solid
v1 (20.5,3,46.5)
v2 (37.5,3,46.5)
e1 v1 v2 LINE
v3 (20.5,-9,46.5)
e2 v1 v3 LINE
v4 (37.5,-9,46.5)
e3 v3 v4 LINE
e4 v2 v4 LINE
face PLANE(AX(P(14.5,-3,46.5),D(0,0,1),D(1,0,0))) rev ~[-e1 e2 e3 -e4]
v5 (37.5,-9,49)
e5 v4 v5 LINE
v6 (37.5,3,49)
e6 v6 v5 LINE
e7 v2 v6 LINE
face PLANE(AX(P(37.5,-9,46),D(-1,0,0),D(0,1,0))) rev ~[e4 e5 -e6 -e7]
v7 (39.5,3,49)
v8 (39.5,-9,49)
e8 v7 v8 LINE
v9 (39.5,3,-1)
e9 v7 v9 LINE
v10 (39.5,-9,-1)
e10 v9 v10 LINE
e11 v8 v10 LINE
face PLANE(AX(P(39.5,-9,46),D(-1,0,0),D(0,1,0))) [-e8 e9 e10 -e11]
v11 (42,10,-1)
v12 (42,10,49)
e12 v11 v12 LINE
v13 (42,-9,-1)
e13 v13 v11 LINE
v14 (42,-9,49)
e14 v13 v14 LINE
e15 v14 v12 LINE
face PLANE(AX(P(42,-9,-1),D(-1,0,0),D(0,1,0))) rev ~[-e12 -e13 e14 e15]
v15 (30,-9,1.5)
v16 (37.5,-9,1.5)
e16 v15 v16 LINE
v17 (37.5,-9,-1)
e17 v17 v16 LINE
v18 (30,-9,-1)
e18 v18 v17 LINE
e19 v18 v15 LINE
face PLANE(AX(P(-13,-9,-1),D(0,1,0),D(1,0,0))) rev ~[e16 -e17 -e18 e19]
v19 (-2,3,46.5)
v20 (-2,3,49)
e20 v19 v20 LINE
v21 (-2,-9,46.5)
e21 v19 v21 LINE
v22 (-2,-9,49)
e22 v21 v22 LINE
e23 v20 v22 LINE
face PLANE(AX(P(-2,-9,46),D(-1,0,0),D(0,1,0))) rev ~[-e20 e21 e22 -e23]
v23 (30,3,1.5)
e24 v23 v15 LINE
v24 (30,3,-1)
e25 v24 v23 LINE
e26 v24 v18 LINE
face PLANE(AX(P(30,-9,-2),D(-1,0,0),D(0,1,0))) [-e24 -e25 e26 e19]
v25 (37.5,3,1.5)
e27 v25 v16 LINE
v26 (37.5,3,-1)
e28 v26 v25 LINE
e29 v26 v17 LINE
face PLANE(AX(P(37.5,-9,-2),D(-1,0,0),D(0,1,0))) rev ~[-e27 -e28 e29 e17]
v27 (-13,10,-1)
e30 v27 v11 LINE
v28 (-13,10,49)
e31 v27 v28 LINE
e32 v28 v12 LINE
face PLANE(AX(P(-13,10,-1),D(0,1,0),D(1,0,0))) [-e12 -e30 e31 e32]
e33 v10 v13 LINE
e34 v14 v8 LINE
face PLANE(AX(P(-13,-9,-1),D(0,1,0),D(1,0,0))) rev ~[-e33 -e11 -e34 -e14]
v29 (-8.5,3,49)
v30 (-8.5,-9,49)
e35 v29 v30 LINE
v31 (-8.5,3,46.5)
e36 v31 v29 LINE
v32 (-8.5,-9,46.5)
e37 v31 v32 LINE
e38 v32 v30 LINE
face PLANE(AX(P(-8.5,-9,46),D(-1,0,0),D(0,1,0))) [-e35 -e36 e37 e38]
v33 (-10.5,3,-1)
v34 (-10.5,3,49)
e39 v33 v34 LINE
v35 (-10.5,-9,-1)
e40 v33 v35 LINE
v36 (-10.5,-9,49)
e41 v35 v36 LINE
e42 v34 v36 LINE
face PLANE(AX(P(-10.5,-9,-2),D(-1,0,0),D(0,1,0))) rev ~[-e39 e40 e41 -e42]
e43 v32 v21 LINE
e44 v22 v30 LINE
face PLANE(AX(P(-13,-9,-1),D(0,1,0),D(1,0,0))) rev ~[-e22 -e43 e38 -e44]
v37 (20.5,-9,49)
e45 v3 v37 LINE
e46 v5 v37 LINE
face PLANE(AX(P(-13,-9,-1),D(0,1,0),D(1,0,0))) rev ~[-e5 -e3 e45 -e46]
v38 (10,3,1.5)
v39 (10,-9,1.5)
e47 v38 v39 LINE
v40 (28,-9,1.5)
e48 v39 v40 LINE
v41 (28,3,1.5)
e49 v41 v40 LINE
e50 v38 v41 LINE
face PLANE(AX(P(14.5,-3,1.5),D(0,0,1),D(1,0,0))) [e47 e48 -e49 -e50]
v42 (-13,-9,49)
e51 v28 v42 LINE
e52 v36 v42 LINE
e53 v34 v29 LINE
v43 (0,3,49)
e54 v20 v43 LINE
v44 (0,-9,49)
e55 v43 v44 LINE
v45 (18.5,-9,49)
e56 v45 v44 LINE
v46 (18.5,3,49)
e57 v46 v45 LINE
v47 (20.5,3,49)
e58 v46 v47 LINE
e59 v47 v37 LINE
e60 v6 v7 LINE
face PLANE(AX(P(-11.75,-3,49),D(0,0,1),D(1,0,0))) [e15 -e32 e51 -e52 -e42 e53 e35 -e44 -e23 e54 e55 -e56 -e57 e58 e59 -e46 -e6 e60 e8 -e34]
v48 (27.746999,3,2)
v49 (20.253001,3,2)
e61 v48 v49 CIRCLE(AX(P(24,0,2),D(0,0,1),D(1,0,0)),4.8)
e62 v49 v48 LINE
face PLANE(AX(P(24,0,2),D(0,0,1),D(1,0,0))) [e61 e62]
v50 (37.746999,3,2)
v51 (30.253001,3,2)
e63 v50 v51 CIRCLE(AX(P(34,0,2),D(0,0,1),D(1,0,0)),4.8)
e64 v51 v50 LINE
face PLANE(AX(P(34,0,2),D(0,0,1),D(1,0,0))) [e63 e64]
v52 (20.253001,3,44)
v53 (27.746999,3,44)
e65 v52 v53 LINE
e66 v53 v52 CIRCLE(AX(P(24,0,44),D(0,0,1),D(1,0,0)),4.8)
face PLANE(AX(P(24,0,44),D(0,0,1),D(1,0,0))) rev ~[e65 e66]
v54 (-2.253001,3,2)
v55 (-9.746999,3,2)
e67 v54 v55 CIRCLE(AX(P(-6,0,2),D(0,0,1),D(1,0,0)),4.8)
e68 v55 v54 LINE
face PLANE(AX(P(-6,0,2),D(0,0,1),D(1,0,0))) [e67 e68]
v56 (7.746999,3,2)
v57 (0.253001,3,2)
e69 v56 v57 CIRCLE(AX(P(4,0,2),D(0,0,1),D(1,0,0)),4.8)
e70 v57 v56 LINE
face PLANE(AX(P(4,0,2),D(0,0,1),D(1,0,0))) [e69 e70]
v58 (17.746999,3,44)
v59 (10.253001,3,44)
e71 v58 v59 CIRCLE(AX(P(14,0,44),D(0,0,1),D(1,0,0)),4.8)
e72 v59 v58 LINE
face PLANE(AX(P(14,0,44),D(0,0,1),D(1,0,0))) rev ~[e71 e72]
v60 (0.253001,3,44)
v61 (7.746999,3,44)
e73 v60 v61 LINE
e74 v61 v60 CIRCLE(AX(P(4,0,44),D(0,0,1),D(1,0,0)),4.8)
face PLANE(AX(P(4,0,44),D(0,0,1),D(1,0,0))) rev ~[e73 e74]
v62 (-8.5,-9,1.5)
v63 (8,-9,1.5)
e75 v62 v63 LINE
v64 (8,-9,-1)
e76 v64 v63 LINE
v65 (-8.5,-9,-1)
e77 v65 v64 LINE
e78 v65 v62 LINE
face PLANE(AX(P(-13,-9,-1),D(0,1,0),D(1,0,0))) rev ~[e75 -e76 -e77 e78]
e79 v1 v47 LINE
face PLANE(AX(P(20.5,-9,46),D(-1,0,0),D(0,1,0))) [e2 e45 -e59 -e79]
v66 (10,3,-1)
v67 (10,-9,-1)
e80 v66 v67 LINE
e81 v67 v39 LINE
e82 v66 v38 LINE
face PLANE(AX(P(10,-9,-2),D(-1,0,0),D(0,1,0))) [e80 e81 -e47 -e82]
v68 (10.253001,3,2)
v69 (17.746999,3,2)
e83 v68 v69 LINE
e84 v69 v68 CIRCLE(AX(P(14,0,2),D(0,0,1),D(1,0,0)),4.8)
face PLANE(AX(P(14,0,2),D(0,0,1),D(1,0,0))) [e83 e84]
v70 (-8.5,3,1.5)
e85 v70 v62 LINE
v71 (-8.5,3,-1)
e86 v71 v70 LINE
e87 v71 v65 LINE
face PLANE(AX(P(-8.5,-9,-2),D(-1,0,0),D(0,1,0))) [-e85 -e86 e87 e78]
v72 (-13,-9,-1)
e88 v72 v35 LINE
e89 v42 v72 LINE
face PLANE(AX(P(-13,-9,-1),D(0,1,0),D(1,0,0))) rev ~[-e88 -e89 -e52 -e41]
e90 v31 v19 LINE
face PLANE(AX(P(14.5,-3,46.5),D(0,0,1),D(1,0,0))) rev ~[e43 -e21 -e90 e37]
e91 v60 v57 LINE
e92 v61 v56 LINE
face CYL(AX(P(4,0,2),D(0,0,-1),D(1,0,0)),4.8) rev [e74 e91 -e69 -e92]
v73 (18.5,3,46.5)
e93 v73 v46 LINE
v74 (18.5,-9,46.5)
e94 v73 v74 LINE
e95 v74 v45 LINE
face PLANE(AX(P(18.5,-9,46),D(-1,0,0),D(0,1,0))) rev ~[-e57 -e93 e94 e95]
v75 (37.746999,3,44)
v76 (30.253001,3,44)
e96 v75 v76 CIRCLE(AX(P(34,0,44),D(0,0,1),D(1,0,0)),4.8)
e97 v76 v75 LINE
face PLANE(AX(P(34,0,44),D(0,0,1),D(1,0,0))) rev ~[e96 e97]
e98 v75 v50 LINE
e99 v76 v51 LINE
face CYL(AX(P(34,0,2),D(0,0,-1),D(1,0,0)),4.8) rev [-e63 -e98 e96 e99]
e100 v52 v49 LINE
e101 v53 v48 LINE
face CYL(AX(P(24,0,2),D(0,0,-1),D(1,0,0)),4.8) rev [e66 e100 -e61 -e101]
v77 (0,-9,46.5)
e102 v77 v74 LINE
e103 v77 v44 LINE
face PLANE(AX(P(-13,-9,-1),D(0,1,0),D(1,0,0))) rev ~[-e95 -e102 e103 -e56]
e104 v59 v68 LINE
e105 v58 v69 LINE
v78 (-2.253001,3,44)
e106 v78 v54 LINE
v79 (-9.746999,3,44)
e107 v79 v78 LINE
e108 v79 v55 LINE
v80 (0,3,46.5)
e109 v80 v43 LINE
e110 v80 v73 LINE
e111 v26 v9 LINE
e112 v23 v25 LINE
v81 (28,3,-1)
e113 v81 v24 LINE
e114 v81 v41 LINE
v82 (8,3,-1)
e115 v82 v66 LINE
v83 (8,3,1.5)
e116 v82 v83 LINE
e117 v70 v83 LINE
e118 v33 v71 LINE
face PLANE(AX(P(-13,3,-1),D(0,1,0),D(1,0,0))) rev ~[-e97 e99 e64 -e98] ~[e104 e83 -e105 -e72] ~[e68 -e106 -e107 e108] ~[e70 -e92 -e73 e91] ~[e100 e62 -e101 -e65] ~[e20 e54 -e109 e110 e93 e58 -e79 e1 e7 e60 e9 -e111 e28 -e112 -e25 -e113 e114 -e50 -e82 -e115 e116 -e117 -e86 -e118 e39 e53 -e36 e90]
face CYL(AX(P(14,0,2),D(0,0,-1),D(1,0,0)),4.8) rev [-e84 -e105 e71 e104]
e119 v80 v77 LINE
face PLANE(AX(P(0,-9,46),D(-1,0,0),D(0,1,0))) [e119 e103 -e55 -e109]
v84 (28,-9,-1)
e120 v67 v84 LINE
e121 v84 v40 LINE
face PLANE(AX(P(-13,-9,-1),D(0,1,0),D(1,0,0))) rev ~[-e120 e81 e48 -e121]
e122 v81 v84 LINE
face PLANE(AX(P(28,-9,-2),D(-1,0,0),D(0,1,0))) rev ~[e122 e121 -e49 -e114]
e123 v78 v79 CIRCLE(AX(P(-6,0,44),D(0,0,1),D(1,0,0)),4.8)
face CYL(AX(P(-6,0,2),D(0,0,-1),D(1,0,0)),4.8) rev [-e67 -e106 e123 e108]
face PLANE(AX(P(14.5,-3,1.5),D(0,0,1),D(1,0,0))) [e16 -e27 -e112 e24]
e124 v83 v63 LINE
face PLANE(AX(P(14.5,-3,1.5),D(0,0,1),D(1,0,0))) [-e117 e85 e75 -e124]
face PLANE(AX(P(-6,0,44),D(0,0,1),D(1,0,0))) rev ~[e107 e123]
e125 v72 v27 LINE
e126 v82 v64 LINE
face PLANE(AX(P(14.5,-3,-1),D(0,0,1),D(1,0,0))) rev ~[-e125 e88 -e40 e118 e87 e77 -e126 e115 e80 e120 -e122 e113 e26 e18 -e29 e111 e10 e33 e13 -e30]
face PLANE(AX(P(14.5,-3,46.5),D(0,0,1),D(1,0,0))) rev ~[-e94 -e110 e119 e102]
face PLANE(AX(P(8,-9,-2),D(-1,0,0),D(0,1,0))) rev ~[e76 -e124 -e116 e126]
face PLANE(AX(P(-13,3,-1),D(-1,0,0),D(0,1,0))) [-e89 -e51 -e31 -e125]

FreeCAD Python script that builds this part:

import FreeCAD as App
import Part
import Sketcher

V = App.Vector

doc = App.newDocument("Part")
body = doc.addObject("PartDesign::Body", "Body")

sketch1 = body.newObject("Sketcher::SketchObject", "Sketch")
sketch1.AttachmentSupport = (doc.getObject("XY_Plane"), [""])
sketch1.MapMode = "FlatFace"
sketch1.AttachmentOffset = App.Placement(V(0, 0, 46), App.Rotation())
sketch1.addGeometry([
    Part.LineSegment(V(18.5, 3, 0), V(18.5, -9, 0)),
    Part.LineSegment(V(18.5, -9, 0), V(20.5, -9, 0)),
    Part.LineSegment(V(20.5, -9, 0), V(20.5, 3, 0)),
    Part.LineSegment(V(20.5, 3, 0), V(18.5, 3, 0)),
], False)
sketch1.addConstraint([
    Sketcher.Constraint("Coincident", 0, 2, 1, 1),
    Sketcher.Constraint("Coincident", 1, 2, 2, 1),
    Sketcher.Constraint("Coincident", 2, 2, 3, 1),
    Sketcher.Constraint("Coincident", 3, 2, 0, 1),
    Sketcher.Constraint("Vertical", 0),
    Sketcher.Constraint("Horizontal", 1),
    Sketcher.Constraint("Vertical", 2),
    Sketcher.Constraint("Horizontal", 3),
    Sketcher.Constraint("DistanceX", 1, 1, 1, 2, 2.0),
    Sketcher.Constraint("DistanceY", 0, 2, 0, 1, 12.0),
    Sketcher.Constraint("DistanceY", 0, 2, -1, 1, 9.0),
    Sketcher.Constraint("DistanceX", -1, 1, 0, 2, 18.5),
])
pad1 = body.newObject("PartDesign::Pad", "Pad")
pad1.Profile = sketch1
pad1.Length = 5
body2 = doc.addObject("PartDesign::Body", "Body001")

sketch2 = body2.newObject("Sketcher::SketchObject", "Sketch001")
sketch2.AttachmentSupport = (doc.getObject("XY_Plane001"), [""])
sketch2.MapMode = "FlatFace"
sketch2.AttachmentOffset = App.Placement(V(0, 0, 46), App.Rotation())
sketch2.addGeometry([
    Part.LineSegment(V(-2, 3, 0), V(-2, -9, 0)),
    Part.LineSegment(V(-2, -9, 0), V(0, -9, 0)),
    Part.LineSegment(V(0, -9, 0), V(0, 3, 0)),
    Part.LineSegment(V(0, 3, 0), V(-2, 3, 0)),
], False)
sketch2.addConstraint([
    Sketcher.Constraint("Coincident", 0, 2, 1, 1),
    Sketcher.Constraint("Coincident", 1, 2, 2, 1),
    Sketcher.Constraint("Coincident", 2, 2, 3, 1),
    Sketcher.Constraint("Coincident", 3, 2, 0, 1),
    Sketcher.Constraint("Vertical", 0),
    Sketcher.Constraint("Horizontal", 1),
    Sketcher.Constraint("Vertical", 2),
    Sketcher.Constraint("Horizontal", 3),
    Sketcher.Constraint("PointOnObject", 1, 2, -2),
    Sketcher.Constraint("DistanceX", 1, 1, 1, 2, 2.0),
    Sketcher.Constraint("DistanceY", 0, 2, 0, 1, 12.0),
    Sketcher.Constraint("DistanceY", 0, 2, -1, 1, 9.0),
])
pad2 = body2.newObject("PartDesign::Pad", "Pad001")
pad2.Profile = sketch2
pad2.Length = 5
body3 = doc.addObject("PartDesign::Body", "Body002")

sketch3 = body3.newObject("Sketcher::SketchObject", "Sketch002")
sketch3.AttachmentSupport = (doc.getObject("XY_Plane002"), [""])
sketch3.MapMode = "FlatFace"
sketch3.AttachmentOffset = App.Placement(V(0, 0, -2), App.Rotation())
sketch3.addGeometry([
    Part.LineSegment(V(8, 3, 0), V(8, -9, 0)),
    Part.LineSegment(V(8, -9, 0), V(10, -9, 0)),
    Part.LineSegment(V(10, -9, 0), V(10, 3, 0)),
    Part.LineSegment(V(10, 3, 0), V(8, 3, 0)),
], False)
sketch3.addConstraint([
    Sketcher.Constraint("Coincident", 0, 2, 1, 1),
    Sketcher.Constraint("Coincident", 1, 2, 2, 1),
    Sketcher.Constraint("Coincident", 2, 2, 3, 1),
    Sketcher.Constraint("Coincident", 3, 2, 0, 1),
    Sketcher.Constraint("Vertical", 0),
    Sketcher.Constraint("Horizontal", 1),
    Sketcher.Constraint("Vertical", 2),
    Sketcher.Constraint("Horizontal", 3),
    Sketcher.Constraint("DistanceX", 1, 1, 1, 2, 2.0),
    Sketcher.Constraint("DistanceY", 0, 2, 0, 1, 12.0),
    Sketcher.Constraint("DistanceX", -1, 1, 0, 2, 8.0),
    Sketcher.Constraint("DistanceY", 0, 2, -1, 1, 9.0),
])
pad3 = body3.newObject("PartDesign::Pad", "Pad002")
pad3.Profile = sketch3
pad3.Length = 5
body4 = doc.addObject("PartDesign::Body", "Body003")
body4.AllowCompound = True

sketch4 = body4.newObject("Sketcher::SketchObject", "Sketch003")
sketch4.AttachmentSupport = (doc.getObject("XY_Plane003"), [""])
sketch4.MapMode = "FlatFace"
sketch4.AttachmentOffset = App.Placement(V(0, 0, -2), App.Rotation())
sketch4.addGeometry([
    Part.LineSegment(V(28, 3, 0), V(28, -9, 0)),
    Part.LineSegment(V(28, -9, 0), V(30, -9, 0)),
    Part.LineSegment(V(30, -9, 0), V(30, 3, 0)),
    Part.LineSegment(V(30, 3, 0), V(28, 3, 0)),
], False)
sketch4.addConstraint([
    Sketcher.Constraint("Coincident", 0, 2, 1, 1),
    Sketcher.Constraint("Coincident", 1, 2, 2, 1),
    Sketcher.Constraint("Coincident", 2, 2, 3, 1),
    Sketcher.Constraint("Coincident", 3, 2, 0, 1),
    Sketcher.Constraint("Vertical", 0),
    Sketcher.Constraint("Horizontal", 1),
    Sketcher.Constraint("Vertical", 2),
    Sketcher.Constraint("Horizontal", 3),
    Sketcher.Constraint("DistanceX", 1, 1, 1, 2, 2.0),
    Sketcher.Constraint("DistanceY", 0, 2, 0, 1, 12.0),
    Sketcher.Constraint("DistanceX", -1, 1, 0, 2, 28.0),
    Sketcher.Constraint("DistanceY", 0, 2, -1, 1, 9.0),
])
pad4 = body4.newObject("PartDesign::Pad", "Pad003")
pad4.Profile = sketch4
pad4.Length = 5
doc.recompute()

boolean = body4.newObject("PartDesign::Boolean", "Boolean")
boolean.Type = "Fuse"
boolean.addObjects([body])
doc.recompute()

boolean2 = body4.newObject("PartDesign::Boolean", "Boolean001")
boolean2.Type = "Fuse"
boolean2.addObjects([body2])
doc.recompute()

boolean3 = body4.newObject("PartDesign::Boolean", "Boolean002")
boolean3.Type = "Fuse"
boolean3.addObjects([body3])
body5 = doc.addObject("PartDesign::Body", "Body004")

sketch5 = body5.newObject("Sketcher::SketchObject", "Sketch004")
sketch5.AttachmentSupport = (doc.getObject("XY_Plane004"), [""])
sketch5.MapMode = "FlatFace"
sketch5.AttachmentOffset = App.Placement(V(0, 0, 46), App.Rotation())
sketch5.addGeometry([
    Part.LineSegment(V(-10.5, 3, 0), V(-10.5, -9, 0)),
    Part.LineSegment(V(-10.5, -9, 0), V(-8.5, -9, 0)),
    Part.LineSegment(V(-8.5, -9, 0), V(-8.5, 3, 0)),
    Part.LineSegment(V(-8.5, 3, 0), V(-10.5, 3, 0)),
], False)
sketch5.addConstraint([
    Sketcher.Constraint("Coincident", 0, 2, 1, 1),
    Sketcher.Constraint("Coincident", 1, 2, 2, 1),
    Sketcher.Constraint("Coincident", 2, 2, 3, 1),
    Sketcher.Constraint("Coincident", 3, 2, 0, 1),
    Sketcher.Constraint("Vertical", 0),
    Sketcher.Constraint("Horizontal", 1),
    Sketcher.Constraint("Vertical", 2),
    Sketcher.Constraint("Horizontal", 3),
    Sketcher.Constraint("DistanceX", 1, 1, 1, 2, 2.0),
    Sketcher.Constraint("DistanceY", 0, 2, 0, 1, 12.0),
    Sketcher.Constraint("DistanceY", 0, 2, -1, 1, 9.0),
    Sketcher.Constraint("DistanceX", 0, 2, -1, 1, 10.5),
])
pad5 = body5.newObject("PartDesign::Pad", "Pad004")
pad5.Profile = sketch5
pad5.Length = 5
body6 = doc.addObject("PartDesign::Body", "Body005")

sketch6 = body6.newObject("Sketcher::SketchObject", "Sketch005")
sketch6.AttachmentSupport = (doc.getObject("XY_Plane005"), [""])
sketch6.MapMode = "FlatFace"
sketch6.AttachmentOffset = App.Placement(V(0, 0, -2), App.Rotation())
sketch6.addGeometry([
    Part.LineSegment(V(37.5, 3, 0), V(37.5, -9, 0)),
    Part.LineSegment(V(37.5, -9, 0), V(39.5, -9, 0)),
    Part.LineSegment(V(39.5, -9, 0), V(39.5, 3, 0)),
    Part.LineSegment(V(39.5, 3, 0), V(37.5, 3, 0)),
], False)
sketch6.addConstraint([
    Sketcher.Constraint("Coincident", 0, 2, 1, 1),
    Sketcher.Constraint("Coincident", 1, 2, 2, 1),
    Sketcher.Constraint("Coincident", 2, 2, 3, 1),
    Sketcher.Constraint("Coincident", 3, 2, 0, 1),
    Sketcher.Constraint("Vertical", 0),
    Sketcher.Constraint("Horizontal", 1),
    Sketcher.Constraint("Vertical", 2),
    Sketcher.Constraint("Horizontal", 3),
    Sketcher.Constraint("DistanceX", 1, 1, 1, 2, 2.0),
    Sketcher.Constraint("DistanceY", 0, 2, 0, 1, 12.0),
    Sketcher.Constraint("DistanceY", 0, 2, -1, 1, 9.0),
    Sketcher.Constraint("DistanceX", -1, 1, 0, 2, 37.5),
])
pad6 = body6.newObject("PartDesign::Pad", "Pad005")
pad6.Profile = sketch6
pad6.Length = 5
body7 = doc.addObject("PartDesign::Body", "Body006")

sketch7 = body7.newObject("Sketcher::SketchObject", "Sketch006")
sketch7.AttachmentSupport = (doc.getObject("XY_Plane006"), [""])
sketch7.MapMode = "FlatFace"
sketch7.AttachmentOffset = App.Placement(V(0, 0, 46), App.Rotation())
sketch7.addGeometry([
    Part.LineSegment(V(37.5, 3, 0), V(37.5, -9, 0)),
    Part.LineSegment(V(37.5, -9, 0), V(39.5, -9, 0)),
    Part.LineSegment(V(39.5, -9, 0), V(39.5, 3, 0)),
    Part.LineSegment(V(39.5, 3, 0), V(37.5, 3, 0)),
], False)
sketch7.addConstraint([
    Sketcher.Constraint("Coincident", 0, 2, 1, 1),
    Sketcher.Constraint("Coincident", 1, 2, 2, 1),
    Sketcher.Constraint("Coincident", 2, 2, 3, 1),
    Sketcher.Constraint("Coincident", 3, 2, 0, 1),
    Sketcher.Constraint("Vertical", 0),
    Sketcher.Constraint("Horizontal", 1),
    Sketcher.Constraint("Vertical", 2),
    Sketcher.Constraint("Horizontal", 3),
    Sketcher.Constraint("DistanceX", 1, 1, 1, 2, 2.0),
    Sketcher.Constraint("DistanceY", 0, 2, 0, 1, 12.0),
    Sketcher.Constraint("DistanceY", 0, 2, -1, 1, 9.0),
    Sketcher.Constraint("DistanceX", -1, 1, 0, 2, 37.5),
])
pad7 = body7.newObject("PartDesign::Pad", "Pad006")
pad7.Profile = sketch7
pad7.Length = 5
body8 = doc.addObject("PartDesign::Body", "Body007")
body8.AllowCompound = True

sketch8 = body8.newObject("Sketcher::SketchObject", "Sketch007")
sketch8.AttachmentSupport = (doc.getObject("XY_Plane007"), [""])
sketch8.MapMode = "FlatFace"
sketch8.AttachmentOffset = App.Placement(V(0, 0, -2), App.Rotation())
sketch8.addGeometry([
    Part.LineSegment(V(-10.5, 3, 0), V(-10.5, -9, 0)),
    Part.LineSegment(V(-10.5, -9, 0), V(-8.5, -9, 0)),
    Part.LineSegment(V(-8.5, -9, 0), V(-8.5, 3, 0)),
    Part.LineSegment(V(-8.5, 3, 0), V(-10.5, 3, 0)),
], False)
sketch8.addConstraint([
    Sketcher.Constraint("Coincident", 0, 2, 1, 1),
    Sketcher.Constraint("Coincident", 1, 2, 2, 1),
    Sketcher.Constraint("Coincident", 2, 2, 3, 1),
    Sketcher.Constraint("Coincident", 3, 2, 0, 1),
    Sketcher.Constraint("Vertical", 0),
    Sketcher.Constraint("Horizontal", 1),
    Sketcher.Constraint("Vertical", 2),
    Sketcher.Constraint("Horizontal", 3),
    Sketcher.Constraint("DistanceX", 1, 1, 1, 2, 2.0),
    Sketcher.Constraint("DistanceY", 0, 2, 0, 1, 12.0),
    Sketcher.Constraint("DistanceY", 0, 2, -1, 1, 9.0),
    Sketcher.Constraint("DistanceX", 0, 2, -1, 1, 10.5),
])
pad8 = body8.newObject("PartDesign::Pad", "Pad007")
pad8.Profile = sketch8
pad8.Length = 5
doc.recompute()

boolean4 = body8.newObject("PartDesign::Boolean", "Boolean003")
boolean4.Type = "Fuse"
boolean4.addObjects([body5])
doc.recompute()

boolean5 = body8.newObject("PartDesign::Boolean", "Boolean004")
boolean5.Type = "Fuse"
boolean5.addObjects([body6])
doc.recompute()

boolean6 = body8.newObject("PartDesign::Boolean", "Boolean005")
boolean6.Type = "Fuse"
boolean6.addObjects([body7])
body9 = doc.addObject("PartDesign::Body", "Body008")

sketch9 = body9.newObject("Sketcher::SketchObject", "Sketch008")
sketch9.AttachmentSupport = (doc.getObject("XY_Plane008"), [""])
sketch9.MapMode = "FlatFace"
sketch9.AttachmentOffset = App.Placement(V(0, 0, -1), App.Rotation())
sketch9.addGeometry([
    Part.LineSegment(V(-13, 3, 0), V(-13, -9, 0)),
    Part.LineSegment(V(-13, -9, 0), V(-10.5, -9, 0)),
    Part.LineSegment(V(-10.5, -9, 0), V(-10.5, 3, 0)),
    Part.LineSegment(V(-10.5, 3, 0), V(-13, 3, 0)),
], False)
sketch9.addConstraint([
    Sketcher.Constraint("Coincident", 0, 2, 1, 1),
    Sketcher.Constraint("Coincident", 1, 2, 2, 1),
    Sketcher.Constraint("Coincident", 2, 2, 3, 1),
    Sketcher.Constraint("Coincident", 3, 2, 0, 1),
    Sketcher.Constraint("Vertical", 0),
    Sketcher.Constraint("Horizontal", 1),
    Sketcher.Constraint("Vertical", 2),
    Sketcher.Constraint("Horizontal", 3),
    Sketcher.Constraint("DistanceY", 0, 2, 0, 1, 12.0),
    Sketcher.Constraint("DistanceX", 1, 1, 1, 2, 2.5),
    Sketcher.Constraint("DistanceX", 0, 2, -1, 1, 13.0),
    Sketcher.Constraint("DistanceY", 0, 2, -1, 1, 9.0),
])
pad9 = body9.newObject("PartDesign::Pad", "Pad008")
pad9.Profile = sketch9
pad9.Length = 50
body10 = doc.addObject("PartDesign::Body", "Body009")

sketch10 = body10.newObject("Sketcher::SketchObject", "Sketch009")
sketch10.AttachmentSupport = (doc.getObject("XY_Plane009"), [""])
sketch10.MapMode = "FlatFace"
sketch10.AttachmentOffset = App.Placement(V(0, 0, -1), App.Rotation())
sketch10.addGeometry([
    Part.LineSegment(V(39.5, 3, 0), V(39.5, -9, 0)),
    Part.LineSegment(V(39.5, -9, 0), V(42, -9, 0)),
    Part.LineSegment(V(42, -9, 0), V(42, 3, 0)),
    Part.LineSegment(V(42, 3, 0), V(39.5, 3, 0)),
], False)
sketch10.addConstraint([
    Sketcher.Constraint("Coincident", 0, 2, 1, 1),
    Sketcher.Constraint("Coincident", 1, 2, 2, 1),
    Sketcher.Constraint("Coincident", 2, 2, 3, 1),
    Sketcher.Constraint("Coincident", 3, 2, 0, 1),
    Sketcher.Constraint("Vertical", 0),
    Sketcher.Constraint("Horizontal", 1),
    Sketcher.Constraint("Vertical", 2),
    Sketcher.Constraint("Horizontal", 3),
    Sketcher.Constraint("DistanceY", 0, 2, 0, 1, 12.0),
    Sketcher.Constraint("DistanceX", 1, 1, 1, 2, 2.5),
    Sketcher.Constraint("DistanceY", 0, 2, -1, 1, 9.0),
    Sketcher.Constraint("DistanceX", -1, 1, 1, 2, 42.0),
])
pad10 = body10.newObject("PartDesign::Pad", "Pad009")
pad10.Profile = sketch10
pad10.Length = 50
body11 = doc.addObject("PartDesign::Body", "Body010")

sketch11 = body11.newObject("Sketcher::SketchObject", "Sketch010")
sketch11.AttachmentSupport = (doc.getObject("XY_Plane010"), [""])
sketch11.MapMode = "FlatFace"
sketch11.AttachmentOffset = App.Placement(V(0, 0, 46.5), App.Rotation())
sketch11.addGeometry([
    Part.LineSegment(V(-13, 3, 0), V(-13, -9, 0)),
    Part.LineSegment(V(-13, -9, 0), V(42, -9, 0)),
    Part.LineSegment(V(42, -9, 0), V(42, 3, 0)),
    Part.LineSegment(V(42, 3, 0), V(-13, 3, 0)),
], False)
sketch11.addConstraint([
    Sketcher.Constraint("Coincident", 0, 2, 1, 1),
    Sketcher.Constraint("Coincident", 1, 2, 2, 1),
    Sketcher.Constraint("Coincident", 2, 2, 3, 1),
    Sketcher.Constraint("Coincident", 3, 2, 0, 1),
    Sketcher.Constraint("Vertical", 0),
    Sketcher.Constraint("Horizontal", 1),
    Sketcher.Constraint("Vertical", 2),
    Sketcher.Constraint("Horizontal", 3),
    Sketcher.Constraint("DistanceX", 1, 1, 1, 2, 55.0),
    Sketcher.Constraint("DistanceY", 0, 2, 0, 1, 12.0),
    Sketcher.Constraint("DistanceX", 0, 2, -1, 1, 13.0),
    Sketcher.Constraint("DistanceY", 0, 2, -1, 1, 9.0),
])
pad11 = body11.newObject("PartDesign::Pad", "Pad010")
pad11.Profile = sketch11
pad11.Length = 2.5
body12 = doc.addObject("PartDesign::Body", "Body011")
body12.AllowCompound = True

sketch12 = body12.newObject("Sketcher::SketchObject", "Sketch011")
sketch12.AttachmentSupport = (doc.getObject("XY_Plane011"), [""])
sketch12.MapMode = "FlatFace"
sketch12.AttachmentOffset = App.Placement(V(0, 0, -1), App.Rotation())
sketch12.addGeometry([
    Part.LineSegment(V(-13, 3, 0), V(-13, -9, 0)),
    Part.LineSegment(V(-13, -9, 0), V(42, -9, 0)),
    Part.LineSegment(V(42, -9, 0), V(42, 3, 0)),
    Part.LineSegment(V(42, 3, 0), V(-13, 3, 0)),
], False)
sketch12.addConstraint([
    Sketcher.Constraint("Coincident", 0, 2, 1, 1),
    Sketcher.Constraint("Coincident", 1, 2, 2, 1),
    Sketcher.Constraint("Coincident", 2, 2, 3, 1),
    Sketcher.Constraint("Coincident", 3, 2, 0, 1),
    Sketcher.Constraint("Vertical", 0),
    Sketcher.Constraint("Horizontal", 1),
    Sketcher.Constraint("Vertical", 2),
    Sketcher.Constraint("Horizontal", 3),
    Sketcher.Constraint("DistanceX", 1, 1, 1, 2, 55.0),
    Sketcher.Constraint("DistanceY", 0, 2, 0, 1, 12.0),
    Sketcher.Constraint("DistanceX", 0, 2, -1, 1, 13.0),
    Sketcher.Constraint("DistanceY", 0, 2, -1, 1, 9.0),
])
pad12 = body12.newObject("PartDesign::Pad", "Pad011")
pad12.Profile = sketch12
pad12.Length = 2.5
doc.recompute()

boolean7 = body12.newObject("PartDesign::Boolean", "Boolean006")
boolean7.Type = "Fuse"
boolean7.addObjects([body9])
doc.recompute()

boolean8 = body12.newObject("PartDesign::Boolean", "Boolean007")
boolean8.Type = "Fuse"
boolean8.addObjects([body10])
doc.recompute()

boolean9 = body12.newObject("PartDesign::Boolean", "Boolean008")
boolean9.Type = "Fuse"
boolean9.addObjects([body11])
doc.recompute()

boolean10 = body12.newObject("PartDesign::Boolean", "Boolean009")
boolean10.Type = "Cut"
boolean10.addObjects([body8])
doc.recompute()

boolean11 = body12.newObject("PartDesign::Boolean", "Boolean010")
boolean11.Type = "Cut"
boolean11.addObjects([body4])
body13 = doc.addObject("PartDesign::Body", "Body012")

sketch13 = body13.newObject("Sketcher::SketchObject", "Sketch012")
sketch13.AttachmentSupport = (doc.getObject("XY_Plane012"), [""])
sketch13.MapMode = "FlatFace"
sketch13.AttachmentOffset = App.Placement(V(0, 0, 42), App.Rotation())
sketch13.addGeometry(Part.Circle(V(0, 0, 0), V(0, 0, 1), 1.65), False)
sketch13.addConstraint([
    Sketcher.Constraint("Coincident", 0, 3, -1, 1),
    Sketcher.Constraint("Diameter", 0, 3.3),
])
pad13 = body13.newObject("PartDesign::Pad", "Pad012")
pad13.Profile = sketch13
pad13.Length = 1.6
body14 = doc.addObject("PartDesign::Body", "Body013")

sketch14 = body14.newObject("Sketcher::SketchObject", "Sketch013")
sketch14.AttachmentSupport = (doc.getObject("XY_Plane013"), [""])
sketch14.MapMode = "FlatFace"
sketch14.addGeometry(Part.Circle(V(0, 0, 0), V(0, 0, 1), 4.8), False)
sketch14.addConstraint([
    Sketcher.Constraint("Coincident", 0, 3, -1, 1),
    Sketcher.Constraint("Diameter", 0, 9.6),
])
pad14 = body14.newObject("PartDesign::Pad", "Pad013")
pad14.Profile = sketch14
pad14.Length = 42
doc.recompute()

boolean12 = body14.newObject("PartDesign::Boolean", "Boolean011")
boolean12.Type = "Fuse"
boolean12.addObjects([body13])
body15 = doc.addObject("PartDesign::Body", "Body014")
doc.recompute()

body14.Placement = App.Placement(V(2, 0, 0), App.Rotation(V(0, 0, 1), 0))
boolean13 = body15.newObject("PartDesign::Boolean", "Boolean012")
boolean13.Type = "Fuse"
boolean13.addObjects([body14])
body16 = doc.addObject("PartDesign::Body", "Body015")

sketch15 = body16.newObject("Sketcher::SketchObject", "Sketch014")
sketch15.AttachmentSupport = (doc.getObject("XY_Plane015"), [""])
sketch15.MapMode = "FlatFace"
sketch15.AttachmentOffset = App.Placement(V(0, 0, 42), App.Rotation())
sketch15.addGeometry(Part.Circle(V(0, 0, 0), V(0, 0, 1), 1.65), False)
sketch15.addConstraint([
    Sketcher.Constraint("Coincident", 0, 3, -1, 1),
    Sketcher.Constraint("Diameter", 0, 3.3),
])
pad15 = body16.newObject("PartDesign::Pad", "Pad014")
pad15.Profile = sketch15
pad15.Length = 1.6
body17 = doc.addObject("PartDesign::Body", "Body016")

sketch16 = body17.newObject("Sketcher::SketchObject", "Sketch015")
sketch16.AttachmentSupport = (doc.getObject("XY_Plane016"), [""])
sketch16.MapMode = "FlatFace"
sketch16.addGeometry(Part.Circle(V(0, 0, 0), V(0, 0, 1), 4.8), False)
sketch16.addConstraint([
    Sketcher.Constraint("Coincident", 0, 3, -1, 1),
    Sketcher.Constraint("Diameter", 0, 9.6),
])
pad16 = body17.newObject("PartDesign::Pad", "Pad015")
pad16.Profile = sketch16
pad16.Length = 42
doc.recompute()

boolean14 = body17.newObject("PartDesign::Boolean", "Boolean013")
boolean14.Type = "Fuse"
boolean14.addObjects([body16])
body18 = doc.addObject("PartDesign::Body", "Body017")
doc.recompute()

body17.Placement = App.Placement(V(12, 0, 0), App.Rotation(V(0, 0, 1), 0))
boolean15 = body18.newObject("PartDesign::Boolean", "Boolean014")
boolean15.Type = "Fuse"
boolean15.addObjects([body17])
body19 = doc.addObject("PartDesign::Body", "Body018")

sketch17 = body19.newObject("Sketcher::SketchObject", "Sketch016")
sketch17.AttachmentSupport = (doc.getObject("XY_Plane018"), [""])
sketch17.MapMode = "FlatFace"
sketch17.AttachmentOffset = App.Placement(V(0, 0, 42), App.Rotation())
sketch17.addGeometry(Part.Circle(V(0, 0, 0), V(0, 0, 1), 1.65), False)
sketch17.addConstraint([
    Sketcher.Constraint("Coincident", 0, 3, -1, 1),
    Sketcher.Constraint("Diameter", 0, 3.3),
])
pad17 = body19.newObject("PartDesign::Pad", "Pad016")
pad17.Profile = sketch17
pad17.Length = 1.6
body20 = doc.addObject("PartDesign::Body", "Body019")

sketch18 = body20.newObject("Sketcher::SketchObject", "Sketch017")
sketch18.AttachmentSupport = (doc.getObject("XY_Plane019"), [""])
sketch18.MapMode = "FlatFace"
sketch18.addGeometry(Part.Circle(V(0, 0, 0), V(0, 0, 1), 4.8), False)
sketch18.addConstraint([
    Sketcher.Constraint("Coincident", 0, 3, -1, 1),
    Sketcher.Constraint("Diameter", 0, 9.6),
])
pad18 = body20.newObject("PartDesign::Pad", "Pad017")
pad18.Profile = sketch18
pad18.Length = 42
doc.recompute()

boolean16 = body20.newObject("PartDesign::Boolean", "Boolean015")
boolean16.Type = "Fuse"
boolean16.addObjects([body19])
body21 = doc.addObject("PartDesign::Body", "Body020")
doc.recompute()

body20.Placement = App.Placement(V(22, 0, 0), App.Rotation(V(0, 0, 1), 0))
boolean17 = body21.newObject("PartDesign::Boolean", "Boolean016")
boolean17.Type = "Fuse"
boolean17.addObjects([body20])
body22 = doc.addObject("PartDesign::Body", "Body021")

sketch19 = body22.newObject("Sketcher::SketchObject", "Sketch018")
sketch19.AttachmentSupport = (doc.getObject("XY_Plane021"), [""])
sketch19.MapMode = "FlatFace"
sketch19.AttachmentOffset = App.Placement(V(0, 0, 42), App.Rotation())
sketch19.addGeometry(Part.Circle(V(0, 0, 0), V(0, 0, 1), 1.65), False)
sketch19.addConstraint([
    Sketcher.Constraint("Coincident", 0, 3, -1, 1),
    Sketcher.Constraint("Diameter", 0, 3.3),
])
pad19 = body22.newObject("PartDesign::Pad", "Pad018")
pad19.Profile = sketch19
pad19.Length = 1.6
body23 = doc.addObject("PartDesign::Body", "Body022")

sketch20 = body23.newObject("Sketcher::SketchObject", "Sketch019")
sketch20.AttachmentSupport = (doc.getObject("XY_Plane022"), [""])
sketch20.MapMode = "FlatFace"
sketch20.addGeometry(Part.Circle(V(0, 0, 0), V(0, 0, 1), 4.8), False)
sketch20.addConstraint([
    Sketcher.Constraint("Coincident", 0, 3, -1, 1),
    Sketcher.Constraint("Diameter", 0, 9.6),
])
pad20 = body23.newObject("PartDesign::Pad", "Pad019")
pad20.Profile = sketch20
pad20.Length = 42
doc.recompute()

boolean18 = body23.newObject("PartDesign::Boolean", "Boolean017")
boolean18.Type = "Fuse"
boolean18.addObjects([body22])
body24 = doc.addObject("PartDesign::Body", "Body023")
doc.recompute()

body23.Placement = App.Placement(V(32, 0, 0), App.Rotation(V(0, 0, 1), 0))
boolean19 = body24.newObject("PartDesign::Boolean", "Boolean018")
boolean19.Type = "Fuse"
boolean19.addObjects([body23])
body25 = doc.addObject("PartDesign::Body", "Body024")

sketch21 = body25.newObject("Sketcher::SketchObject", "Sketch020")
sketch21.AttachmentSupport = (doc.getObject("XY_Plane024"), [""])
sketch21.MapMode = "FlatFace"
sketch21.AttachmentOffset = App.Placement(V(0, 0, 42), App.Rotation())
sketch21.addGeometry(Part.Circle(V(0, 0, 0), V(0, 0, 1), 1.65), False)
sketch21.addConstraint([
    Sketcher.Constraint("Coincident", 0, 3, -1, 1),
    Sketcher.Constraint("Diameter", 0, 3.3),
])
pad21 = body25.newObject("PartDesign::Pad", "Pad020")
pad21.Profile = sketch21
pad21.Length = 1.6
body26 = doc.addObject("PartDesign::Body", "Body025")

sketch22 = body26.newObject("Sketcher::SketchObject", "Sketch021")
sketch22.AttachmentSupport = (doc.getObject("XY_Plane025"), [""])
sketch22.MapMode = "FlatFace"
sketch22.addGeometry(Part.Circle(V(0, 0, 0), V(0, 0, 1), 4.8), False)
sketch22.addConstraint([
    Sketcher.Constraint("Coincident", 0, 3, -1, 1),
    Sketcher.Constraint("Diameter", 0, 9.6),
])
pad22 = body26.newObject("PartDesign::Pad", "Pad021")
pad22.Profile = sketch22
pad22.Length = 42
doc.recompute()

boolean20 = body26.newObject("PartDesign::Boolean", "Boolean019")
boolean20.Type = "Fuse"
boolean20.addObjects([body25])
body27 = doc.addObject("PartDesign::Body", "Body026")
body27.AllowCompound = True
doc.recompute()

body26.Placement = App.Placement(V(-8, 0, 0), App.Rotation(V(0, 0, 1), 0))
boolean21 = body27.newObject("PartDesign::Boolean", "Boolean020")
boolean21.Type = "Fuse"
boolean21.addObjects([body26])
doc.recompute()

boolean22 = body27.newObject("PartDesign::Boolean", "Boolean021")
boolean22.Type = "Fuse"
boolean22.addObjects([body15])
doc.recompute()

boolean23 = body27.newObject("PartDesign::Boolean", "Boolean022")
boolean23.Type = "Fuse"
boolean23.addObjects([body18])
doc.recompute()

boolean24 = body27.newObject("PartDesign::Boolean", "Boolean023")
boolean24.Type = "Fuse"
boolean24.addObjects([body21])
doc.recompute()

boolean25 = body27.newObject("PartDesign::Boolean", "Boolean024")
boolean25.Type = "Fuse"
boolean25.addObjects([body24])
body28 = doc.addObject("PartDesign::Body", "Body027")
body28.AllowCompound = True
doc.recompute()

body27.Placement = App.Placement(V(2, 0, 2), App.Rotation(V(0, 0, 1), 0))
boolean26 = body28.newObject("PartDesign::Boolean", "Boolean025")
boolean26.Type = "Fuse"
boolean26.addObjects([body27])
body29 = doc.addObject("PartDesign::Body", "Body028")

sketch23 = body29.newObject("Sketcher::SketchObject", "Sketch022")
sketch23.AttachmentSupport = (doc.getObject("XY_Plane028"), [""])
sketch23.MapMode = "FlatFace"
sketch23.AttachmentOffset = App.Placement(V(0, 0, -1), App.Rotation())
sketch23.addGeometry([
    Part.LineSegment(V(-13, 10, 0), V(-13, 3, 0)),
    Part.LineSegment(V(-13, 3, 0), V(42, 3, 0)),
    Part.LineSegment(V(42, 3, 0), V(42, 10, 0)),
    Part.LineSegment(V(42, 10, 0), V(-13, 10, 0)),
], False)
sketch23.addConstraint([
    Sketcher.Constraint("Coincident", 0, 2, 1, 1),
    Sketcher.Constraint("Coincident", 1, 2, 2, 1),
    Sketcher.Constraint("Coincident", 2, 2, 3, 1),
    Sketcher.Constraint("Coincident", 3, 2, 0, 1),
    Sketcher.Constraint("Vertical", 0),
    Sketcher.Constraint("Horizontal", 1),
    Sketcher.Constraint("Vertical", 2),
    Sketcher.Constraint("Horizontal", 3),
    Sketcher.Constraint("DistanceX", 1, 1, 1, 2, 55.0),
    Sketcher.Constraint("DistanceY", 0, 2, 0, 1, 7.0),
    Sketcher.Constraint("DistanceX", 0, 2, -1, 1, 13.0),
    Sketcher.Constraint("DistanceY", -1, 1, 0, 2, 3.0),
])
pad23 = body29.newObject("PartDesign::Pad", "Pad022")
pad23.Profile = sketch23
pad23.Length = 50
doc.recompute()

boolean27 = body29.newObject("PartDesign::Boolean", "Boolean026")
boolean27.Type = "Cut"
boolean27.addObjects([body28])
doc.recompute()

boolean28 = body29.newObject("PartDesign::Boolean", "Boolean027")
boolean28.Type = "Fuse"
boolean28.addObjects([body12])

doc.recompute()
